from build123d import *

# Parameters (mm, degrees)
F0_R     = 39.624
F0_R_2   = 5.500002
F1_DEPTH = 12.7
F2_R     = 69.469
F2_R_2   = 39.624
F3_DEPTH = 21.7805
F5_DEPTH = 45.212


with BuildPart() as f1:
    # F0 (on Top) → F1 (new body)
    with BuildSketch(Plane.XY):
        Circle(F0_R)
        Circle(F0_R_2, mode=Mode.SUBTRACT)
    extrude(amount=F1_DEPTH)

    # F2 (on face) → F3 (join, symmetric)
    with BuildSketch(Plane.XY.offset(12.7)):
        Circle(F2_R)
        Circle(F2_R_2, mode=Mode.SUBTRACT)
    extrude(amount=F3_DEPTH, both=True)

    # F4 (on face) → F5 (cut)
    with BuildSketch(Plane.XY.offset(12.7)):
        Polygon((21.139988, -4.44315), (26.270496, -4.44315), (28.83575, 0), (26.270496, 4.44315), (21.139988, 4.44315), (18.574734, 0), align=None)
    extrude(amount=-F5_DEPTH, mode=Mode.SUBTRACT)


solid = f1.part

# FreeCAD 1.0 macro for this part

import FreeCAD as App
import Part
import Sketcher
from FreeCAD import Vector
Q = App.Units.Quantity

doc = App.newDocument("Part")
body = doc.addObject("PartDesign::Body", "Body")

sketch1 = doc.addObject("Sketcher::SketchObject", "Sketch")
body.addObject(sketch1)
sketch1.AttachmentSupport = (doc.XY_Plane, [""])
sketch1.MapMode = "FlatFace"
sketch1.addGeometry([
    Part.Circle(Vector(0, 0, 0), Vector(0, 0, 1), 40),
    Part.Circle(Vector(0, 0, 0), Vector(0, 0, 1), 6),
], False)
sketch1.addConstraint([
    Sketcher.Constraint("Coincident", 0, 3, -1, 1),
    Sketcher.Constraint("Coincident", 1, 3, -1, 1),
    Sketcher.Constraint("Diameter", 0, Q("3.12 in")),
    Sketcher.Constraint("Diameter", 1, 11.000004),
])
pad1 = doc.addObject("PartDesign::Pad", "Pad")
body.addObject(pad1)
pad1.Profile = sketch1
pad1.Length = Q("0.5 in")

sketch2 = doc.addObject("Sketcher::SketchObject", "Sketch001")
body.addObject(sketch2)
sketch2.AttachmentSupport = (doc.XY_Plane, [""])
sketch2.MapMode = "FlatFace"
sketch2.AttachmentOffset = App.Placement(Vector(0, 0, 0.5 * 25.4), App.Rotation())
sketch2.addGeometry([
    Part.Circle(Vector(0, 0, 0), Vector(0, 0, 1), 69),
    Part.Circle(Vector(0, 0, 0), Vector(0, 0, 1), 40),
], False)
sketch2.addConstraint([
    Sketcher.Constraint("Coincident", 0, 3, -1, 1),
    Sketcher.Constraint("Coincident", 1, 3, -1, 1),
    Sketcher.Constraint("Diameter", 0, Q("5.47 in")),
    Sketcher.Constraint("Diameter", 1, Q("3.12 in")),
])
pad2 = doc.addObject("PartDesign::Pad", "Pad001")
body.addObject(pad2)
pad2.Profile = sketch2
pad2.Length = Q("1.715 in")
pad2.Midplane = True

sketch3 = doc.addObject("Sketcher::SketchObject", "Sketch002")
body.addObject(sketch3)
sketch3.AttachmentSupport = (doc.XY_Plane, [""])
sketch3.MapMode = "FlatFace"
sketch3.AttachmentOffset = App.Placement(Vector(0, 0, 0.5 * 25.4), App.Rotation())
sketch3.addGeometry([
    Part.LineSegment(Vector(21, -4, 0), Vector(26, -4, 0)),
    Part.LineSegment(Vector(26, -4, 0), Vector(29, 0, 0)),
    Part.LineSegment(Vector(29, 0, 0), Vector(26, 4, 0)),
    Part.LineSegment(Vector(26, 4, 0), Vector(21, 4, 0)),
    Part.LineSegment(Vector(21, 4, 0), Vector(19, 0, 0)),
    Part.LineSegment(Vector(19, 0, 0), Vector(21, -4, 0)),
], False)
sketch3.addConstraint([
    Sketcher.Constraint("Coincident", 0, 2, 1, 1),
    Sketcher.Constraint("Coincident", 1, 2, 2, 1),
    Sketcher.Constraint("Coincident", 2, 2, 3, 1),
    Sketcher.Constraint("Coincident", 3, 2, 4, 1),
    Sketcher.Constraint("Coincident", 4, 2, 5, 1),
    Sketcher.Constraint("Coincident", 5, 2, 0, 1),
    Sketcher.Constraint("Horizontal", 0),
    Sketcher.Constraint("Horizontal", 3),
    Sketcher.Constraint("Symmetric", 0, 2, 2, 2, -1),
    Sketcher.Constraint("PointOnObject", 1, 2, -1),
    Sketcher.Constraint("PointOnObject", 4, 2, -1),
    Sketcher.Constraint("Parallel", 1, 4),
    Sketcher.Constraint("Parallel", 2, 5),
    Sketcher.Constraint("Angle", 1, Q("59.999999 deg")),
    Sketcher.Constraint("DistanceX", 0, 1, 0, 2, 5.130508),
    Sketcher.Constraint("DistanceY", 0, 2, 2, 2, 8.8863),
    Sketcher.Constraint("DistanceX", -1, 1, 1, 2, 28.83575),
])
pocket1 = doc.addObject("PartDesign::Pocket", "Pocket")
body.addObject(pocket1)
pocket1.Profile = sketch3
pocket1.Length = Q("1.78 in")

doc.recompute()
